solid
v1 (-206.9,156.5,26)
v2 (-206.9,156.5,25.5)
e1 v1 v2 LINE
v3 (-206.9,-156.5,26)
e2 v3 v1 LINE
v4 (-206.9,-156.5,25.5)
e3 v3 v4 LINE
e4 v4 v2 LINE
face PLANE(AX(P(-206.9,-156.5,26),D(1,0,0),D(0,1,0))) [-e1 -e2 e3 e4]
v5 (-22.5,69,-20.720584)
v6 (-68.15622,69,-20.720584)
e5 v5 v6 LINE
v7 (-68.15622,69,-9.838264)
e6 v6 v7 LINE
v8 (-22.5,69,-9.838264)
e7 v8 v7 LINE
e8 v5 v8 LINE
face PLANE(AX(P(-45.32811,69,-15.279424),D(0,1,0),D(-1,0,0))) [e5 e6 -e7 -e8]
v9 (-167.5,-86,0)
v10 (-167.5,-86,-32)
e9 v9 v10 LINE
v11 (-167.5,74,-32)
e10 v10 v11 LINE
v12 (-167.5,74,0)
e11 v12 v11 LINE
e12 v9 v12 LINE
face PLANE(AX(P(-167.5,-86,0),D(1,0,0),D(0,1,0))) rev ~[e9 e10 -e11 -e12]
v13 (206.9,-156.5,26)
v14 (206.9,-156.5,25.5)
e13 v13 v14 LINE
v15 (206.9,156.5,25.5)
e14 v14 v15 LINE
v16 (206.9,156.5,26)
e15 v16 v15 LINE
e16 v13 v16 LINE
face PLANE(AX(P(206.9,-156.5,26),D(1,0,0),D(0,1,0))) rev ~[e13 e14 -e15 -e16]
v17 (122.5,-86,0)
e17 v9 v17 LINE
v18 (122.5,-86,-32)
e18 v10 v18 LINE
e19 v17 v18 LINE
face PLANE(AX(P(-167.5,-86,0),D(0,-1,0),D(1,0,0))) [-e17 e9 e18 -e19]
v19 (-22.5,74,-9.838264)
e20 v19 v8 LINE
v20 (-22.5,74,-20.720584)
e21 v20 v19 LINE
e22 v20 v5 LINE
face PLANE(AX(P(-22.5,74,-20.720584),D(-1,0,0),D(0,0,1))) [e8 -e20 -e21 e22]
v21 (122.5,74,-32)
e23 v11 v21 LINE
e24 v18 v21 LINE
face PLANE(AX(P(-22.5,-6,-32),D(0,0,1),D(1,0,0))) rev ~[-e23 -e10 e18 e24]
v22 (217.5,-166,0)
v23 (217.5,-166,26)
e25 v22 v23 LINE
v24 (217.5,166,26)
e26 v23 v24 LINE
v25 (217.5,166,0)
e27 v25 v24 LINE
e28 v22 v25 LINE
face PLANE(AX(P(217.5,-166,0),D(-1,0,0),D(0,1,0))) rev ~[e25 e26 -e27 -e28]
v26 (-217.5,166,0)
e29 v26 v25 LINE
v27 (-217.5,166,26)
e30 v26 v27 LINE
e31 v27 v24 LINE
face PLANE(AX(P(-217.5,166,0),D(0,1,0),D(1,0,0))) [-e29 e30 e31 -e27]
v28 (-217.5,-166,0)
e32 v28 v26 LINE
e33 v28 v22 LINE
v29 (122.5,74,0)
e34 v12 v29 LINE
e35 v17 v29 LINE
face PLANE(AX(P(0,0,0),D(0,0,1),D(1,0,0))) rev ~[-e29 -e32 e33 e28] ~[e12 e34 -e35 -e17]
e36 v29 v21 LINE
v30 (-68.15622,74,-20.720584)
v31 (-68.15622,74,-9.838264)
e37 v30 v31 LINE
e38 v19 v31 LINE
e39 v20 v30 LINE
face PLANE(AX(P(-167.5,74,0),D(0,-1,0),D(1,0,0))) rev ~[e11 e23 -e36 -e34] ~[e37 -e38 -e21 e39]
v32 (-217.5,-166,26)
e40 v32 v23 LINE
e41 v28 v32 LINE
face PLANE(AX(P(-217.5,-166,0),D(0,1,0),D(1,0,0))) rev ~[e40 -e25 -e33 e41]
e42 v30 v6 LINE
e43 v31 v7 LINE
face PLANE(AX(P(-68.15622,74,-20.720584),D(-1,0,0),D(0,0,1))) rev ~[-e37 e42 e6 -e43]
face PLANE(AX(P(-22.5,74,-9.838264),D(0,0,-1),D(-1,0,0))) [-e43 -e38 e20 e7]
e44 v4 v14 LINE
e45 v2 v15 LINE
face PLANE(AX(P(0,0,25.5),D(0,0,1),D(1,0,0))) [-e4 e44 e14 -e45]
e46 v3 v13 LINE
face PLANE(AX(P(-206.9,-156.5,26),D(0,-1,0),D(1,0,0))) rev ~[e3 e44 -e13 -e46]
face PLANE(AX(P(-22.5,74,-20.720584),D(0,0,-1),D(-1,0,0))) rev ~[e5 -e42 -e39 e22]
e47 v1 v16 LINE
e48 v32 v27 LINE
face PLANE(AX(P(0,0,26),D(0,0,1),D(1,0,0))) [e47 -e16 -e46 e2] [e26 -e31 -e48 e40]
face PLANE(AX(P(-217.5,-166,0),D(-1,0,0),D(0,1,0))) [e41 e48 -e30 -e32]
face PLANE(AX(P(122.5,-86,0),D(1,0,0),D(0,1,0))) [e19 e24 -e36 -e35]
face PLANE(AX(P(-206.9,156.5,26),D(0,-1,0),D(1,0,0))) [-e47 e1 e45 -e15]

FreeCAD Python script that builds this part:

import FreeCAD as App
import Part
import Sketcher
from FreeCAD import Vector
Q = App.Units.Quantity

doc = App.newDocument("Part")
params = doc.addObject("Spreadsheet::Sheet", "Params")
for row, (alias, value) in enumerate([
    ("sketch1_width", "435 mm"),
    ("sketch1_height", "332 mm"),
    ("pad1_length", "26 mm"),
    ("sketch2_height", "313 mm"),
    ("sketch2_width", "413.8 mm"),
    ("pocket1_length", "0.5 mm"),
    ("sketch3_width", "290 mm"),
    ("sketch3_height", "160 mm"),
    ("pad2_length", "32 mm"),
    ("pocket2_length", "5 mm"),
], start=1):
    params.set(f"A{row}", alias)
    params.set(f"B{row}", "=" + value)
    params.setAlias(f"B{row}", alias)

body = doc.addObject("PartDesign::Body", "Body")

# Sketch on XY plane
sketch1 = body.newObject("Sketcher::SketchObject", "Sketch")
sketch1.AttachmentSupport = (doc.getObject("XY_Plane"), [""])
sketch1.MapMode = "FlatFace"
sketch1.addGeometry(Part.LineSegment(Vector(-218, 166, 0), Vector(-218, -166, 0)), False)
sketch1.addGeometry(Part.LineSegment(Vector(-218, -166, 0), Vector(218, -166, 0)), False)
sketch1.addGeometry(Part.LineSegment(Vector(218, -166, 0), Vector(218, 166, 0)), False)
sketch1.addGeometry(Part.LineSegment(Vector(218, 166, 0), Vector(-218, 166, 0)), False)
sketch1.addConstraint(Sketcher.Constraint("Coincident", 0, 2, 1, 1))
sketch1.addConstraint(Sketcher.Constraint("Coincident", 1, 2, 2, 1))
sketch1.addConstraint(Sketcher.Constraint("Coincident", 2, 2, 3, 1))
sketch1.addConstraint(Sketcher.Constraint("Coincident", 3, 2, 0, 1))
sketch1.addConstraint(Sketcher.Constraint("Vertical", 0))
sketch1.addConstraint(Sketcher.Constraint("Horizontal", 1))
sketch1.addConstraint(Sketcher.Constraint("Vertical", 2))
sketch1.addConstraint(Sketcher.Constraint("Horizontal", 3))
sketch1.addConstraint(Sketcher.Constraint("Symmetric", 0, 2, 2, 2, -1, 1))
sketch1.addConstraint(Sketcher.Constraint("DistanceX", 1, 1, 1, 2, Q("435 mm")))
sketch1.addConstraint(Sketcher.Constraint("DistanceY", 0, 2, 0, 1, Q("332 mm")))
sketch1.setExpression("Constraints[9]", "Params.sketch1_width")
sketch1.setExpression("Constraints[10]", "Params.sketch1_height")
pad1 = body.newObject("PartDesign::Pad", "Pad")
pad1.Profile = sketch1
pad1.setExpression("Length", "Params.pad1_length")

# Sketch on XY plane
sketch2 = body.newObject("Sketcher::SketchObject", "Sketch001")
sketch2.AttachmentSupport = (doc.getObject("XY_Plane"), [""])
sketch2.MapMode = "FlatFace"
sketch2.AttachmentOffset = App.Placement(Vector(0, 0, 26), App.Rotation())
sketch2.addGeometry(Part.LineSegment(Vector(-207, 156, 0), Vector(-207, -156, 0)), False)
sketch2.addGeometry(Part.LineSegment(Vector(-207, -156, 0), Vector(207, -156, 0)), False)
sketch2.addGeometry(Part.LineSegment(Vector(207, -156, 0), Vector(207, 156, 0)), False)
sketch2.addGeometry(Part.LineSegment(Vector(207, 156, 0), Vector(-207, 156, 0)), False)
sketch2.addConstraint(Sketcher.Constraint("Coincident", 0, 2, 1, 1))
sketch2.addConstraint(Sketcher.Constraint("Coincident", 1, 2, 2, 1))
sketch2.addConstraint(Sketcher.Constraint("Coincident", 2, 2, 3, 1))
sketch2.addConstraint(Sketcher.Constraint("Coincident", 3, 2, 0, 1))
sketch2.addConstraint(Sketcher.Constraint("Vertical", 0))
sketch2.addConstraint(Sketcher.Constraint("Horizontal", 1))
sketch2.addConstraint(Sketcher.Constraint("Vertical", 2))
sketch2.addConstraint(Sketcher.Constraint("Horizontal", 3))
sketch2.addConstraint(Sketcher.Constraint("Symmetric", 0, 2, 2, 2, -1, 1))
sketch2.addConstraint(Sketcher.Constraint("DistanceY", 0, 2, 0, 1, Q("313 mm")))
sketch2.addConstraint(Sketcher.Constraint("DistanceX", 1, 1, 1, 2, Q("413.8 mm")))
sketch2.setExpression("Constraints[9]", "Params.sketch2_height")
sketch2.setExpression("Constraints[10]", "Params.sketch2_width")
pocket1 = body.newObject("PartDesign::Pocket", "Pocket")
pocket1.Profile = sketch2
pocket1.setExpression("Length", "Params.pocket1_length")

# Sketch on XY plane
sketch3 = body.newObject("Sketcher::SketchObject", "Sketch002")
sketch3.AttachmentSupport = (doc.getObject("XY_Plane"), [""])
sketch3.MapMode = "FlatFace"
sketch3.addGeometry(Part.LineSegment(Vector(-168, 74, 0), Vector(-168, -86, 0)), False)
sketch3.addGeometry(Part.LineSegment(Vector(-168, -86, 0), Vector(122, -86, 0)), False)
sketch3.addGeometry(Part.LineSegment(Vector(122, -86, 0), Vector(122, 74, 0)), False)
sketch3.addGeometry(Part.LineSegment(Vector(122, 74, 0), Vector(-168, 74, 0)), False)
sketch3.addConstraint(Sketcher.Constraint("Coincident", 0, 2, 1, 1))
sketch3.addConstraint(Sketcher.Constraint("Coincident", 1, 2, 2, 1))
sketch3.addConstraint(Sketcher.Constraint("Coincident", 2, 2, 3, 1))
sketch3.addConstraint(Sketcher.Constraint("Coincident", 3, 2, 0, 1))
sketch3.addConstraint(Sketcher.Constraint("Vertical", 0))
sketch3.addConstraint(Sketcher.Constraint("Horizontal", 1))
sketch3.addConstraint(Sketcher.Constraint("Vertical", 2))
sketch3.addConstraint(Sketcher.Constraint("Horizontal", 3))
sketch3.addConstraint(Sketcher.Constraint("DistanceX", 1, 1, 1, 2, Q("290 mm")))
sketch3.addConstraint(Sketcher.Constraint("DistanceY", 0, 2, 0, 1, Q("160 mm")))
sketch3.addConstraint(Sketcher.Constraint("DistanceY", 0, 2, -1, 1, Q("86 mm")))
sketch3.addConstraint(Sketcher.Constraint("DistanceX", 0, 2, -1, 1, Q("167.5 mm")))
sketch3.setExpression("Constraints[8]", "Params.sketch3_width")
sketch3.setExpression("Constraints[9]", "Params.sketch3_height")
pad2 = body.newObject("PartDesign::Pad", "Pad001")
pad2.Profile = sketch3
pad2.setExpression("Length", "Params.pad2_length")
pad2.Reversed = True

# Sketch on XZ plane
sketch4 = body.newObject("Sketcher::SketchObject", "Sketch003")
sketch4.AttachmentSupport = (doc.getObject("XZ_Plane"), [""])
sketch4.MapMode = "FlatFace"
sketch4.AttachmentOffset = App.Placement(Vector(0, 0, -74), App.Rotation())
sketch4.addGeometry(Part.LineSegment(Vector(-22, -10, 0), Vector(-22, -21, 0)), False)
sketch4.addGeometry(Part.LineSegment(Vector(-22, -21, 0), Vector(-68, -21, 0)), False)
sketch4.addGeometry(Part.LineSegment(Vector(-68, -21, 0), Vector(-68, -10, 0)), False)
sketch4.addGeometry(Part.LineSegment(Vector(-68, -10, 0), Vector(-22, -10, 0)), False)
sketch4.addConstraint(Sketcher.Constraint("Coincident", 0, 2, 1, 1))
sketch4.addConstraint(Sketcher.Constraint("Coincident", 1, 2, 2, 1))
sketch4.addConstraint(Sketcher.Constraint("Coincident", 2, 2, 3, 1))
sketch4.addConstraint(Sketcher.Constraint("Coincident", 3, 2, 0, 1))
sketch4.addConstraint(Sketcher.Constraint("Vertical", 0))
sketch4.addConstraint(Sketcher.Constraint("Horizontal", 1))
sketch4.addConstraint(Sketcher.Constraint("Vertical", 2))
sketch4.addConstraint(Sketcher.Constraint("Horizontal", 3))
sketch4.addConstraint(Sketcher.Constraint("DistanceX", 0, 2, -1, 1, Q("22.5 mm")))
sketch4.addConstraint(Sketcher.Constraint("DistanceX", 1, 2, 1, 1, Q("45.65622 mm")))
sketch4.addConstraint(Sketcher.Constraint("DistanceY", 0, 2, 0, 1, Q("10.88232 mm")))
sketch4.addConstraint(Sketcher.Constraint("DistanceY", 0, 2, -1, 1, Q("20.720584 mm")))
pocket2 = body.newObject("PartDesign::Pocket", "Pocket001")
pocket2.Profile = sketch4
pocket2.setExpression("Length", "Params.pocket2_length")
pocket2.Reversed = True

doc.recompute()
